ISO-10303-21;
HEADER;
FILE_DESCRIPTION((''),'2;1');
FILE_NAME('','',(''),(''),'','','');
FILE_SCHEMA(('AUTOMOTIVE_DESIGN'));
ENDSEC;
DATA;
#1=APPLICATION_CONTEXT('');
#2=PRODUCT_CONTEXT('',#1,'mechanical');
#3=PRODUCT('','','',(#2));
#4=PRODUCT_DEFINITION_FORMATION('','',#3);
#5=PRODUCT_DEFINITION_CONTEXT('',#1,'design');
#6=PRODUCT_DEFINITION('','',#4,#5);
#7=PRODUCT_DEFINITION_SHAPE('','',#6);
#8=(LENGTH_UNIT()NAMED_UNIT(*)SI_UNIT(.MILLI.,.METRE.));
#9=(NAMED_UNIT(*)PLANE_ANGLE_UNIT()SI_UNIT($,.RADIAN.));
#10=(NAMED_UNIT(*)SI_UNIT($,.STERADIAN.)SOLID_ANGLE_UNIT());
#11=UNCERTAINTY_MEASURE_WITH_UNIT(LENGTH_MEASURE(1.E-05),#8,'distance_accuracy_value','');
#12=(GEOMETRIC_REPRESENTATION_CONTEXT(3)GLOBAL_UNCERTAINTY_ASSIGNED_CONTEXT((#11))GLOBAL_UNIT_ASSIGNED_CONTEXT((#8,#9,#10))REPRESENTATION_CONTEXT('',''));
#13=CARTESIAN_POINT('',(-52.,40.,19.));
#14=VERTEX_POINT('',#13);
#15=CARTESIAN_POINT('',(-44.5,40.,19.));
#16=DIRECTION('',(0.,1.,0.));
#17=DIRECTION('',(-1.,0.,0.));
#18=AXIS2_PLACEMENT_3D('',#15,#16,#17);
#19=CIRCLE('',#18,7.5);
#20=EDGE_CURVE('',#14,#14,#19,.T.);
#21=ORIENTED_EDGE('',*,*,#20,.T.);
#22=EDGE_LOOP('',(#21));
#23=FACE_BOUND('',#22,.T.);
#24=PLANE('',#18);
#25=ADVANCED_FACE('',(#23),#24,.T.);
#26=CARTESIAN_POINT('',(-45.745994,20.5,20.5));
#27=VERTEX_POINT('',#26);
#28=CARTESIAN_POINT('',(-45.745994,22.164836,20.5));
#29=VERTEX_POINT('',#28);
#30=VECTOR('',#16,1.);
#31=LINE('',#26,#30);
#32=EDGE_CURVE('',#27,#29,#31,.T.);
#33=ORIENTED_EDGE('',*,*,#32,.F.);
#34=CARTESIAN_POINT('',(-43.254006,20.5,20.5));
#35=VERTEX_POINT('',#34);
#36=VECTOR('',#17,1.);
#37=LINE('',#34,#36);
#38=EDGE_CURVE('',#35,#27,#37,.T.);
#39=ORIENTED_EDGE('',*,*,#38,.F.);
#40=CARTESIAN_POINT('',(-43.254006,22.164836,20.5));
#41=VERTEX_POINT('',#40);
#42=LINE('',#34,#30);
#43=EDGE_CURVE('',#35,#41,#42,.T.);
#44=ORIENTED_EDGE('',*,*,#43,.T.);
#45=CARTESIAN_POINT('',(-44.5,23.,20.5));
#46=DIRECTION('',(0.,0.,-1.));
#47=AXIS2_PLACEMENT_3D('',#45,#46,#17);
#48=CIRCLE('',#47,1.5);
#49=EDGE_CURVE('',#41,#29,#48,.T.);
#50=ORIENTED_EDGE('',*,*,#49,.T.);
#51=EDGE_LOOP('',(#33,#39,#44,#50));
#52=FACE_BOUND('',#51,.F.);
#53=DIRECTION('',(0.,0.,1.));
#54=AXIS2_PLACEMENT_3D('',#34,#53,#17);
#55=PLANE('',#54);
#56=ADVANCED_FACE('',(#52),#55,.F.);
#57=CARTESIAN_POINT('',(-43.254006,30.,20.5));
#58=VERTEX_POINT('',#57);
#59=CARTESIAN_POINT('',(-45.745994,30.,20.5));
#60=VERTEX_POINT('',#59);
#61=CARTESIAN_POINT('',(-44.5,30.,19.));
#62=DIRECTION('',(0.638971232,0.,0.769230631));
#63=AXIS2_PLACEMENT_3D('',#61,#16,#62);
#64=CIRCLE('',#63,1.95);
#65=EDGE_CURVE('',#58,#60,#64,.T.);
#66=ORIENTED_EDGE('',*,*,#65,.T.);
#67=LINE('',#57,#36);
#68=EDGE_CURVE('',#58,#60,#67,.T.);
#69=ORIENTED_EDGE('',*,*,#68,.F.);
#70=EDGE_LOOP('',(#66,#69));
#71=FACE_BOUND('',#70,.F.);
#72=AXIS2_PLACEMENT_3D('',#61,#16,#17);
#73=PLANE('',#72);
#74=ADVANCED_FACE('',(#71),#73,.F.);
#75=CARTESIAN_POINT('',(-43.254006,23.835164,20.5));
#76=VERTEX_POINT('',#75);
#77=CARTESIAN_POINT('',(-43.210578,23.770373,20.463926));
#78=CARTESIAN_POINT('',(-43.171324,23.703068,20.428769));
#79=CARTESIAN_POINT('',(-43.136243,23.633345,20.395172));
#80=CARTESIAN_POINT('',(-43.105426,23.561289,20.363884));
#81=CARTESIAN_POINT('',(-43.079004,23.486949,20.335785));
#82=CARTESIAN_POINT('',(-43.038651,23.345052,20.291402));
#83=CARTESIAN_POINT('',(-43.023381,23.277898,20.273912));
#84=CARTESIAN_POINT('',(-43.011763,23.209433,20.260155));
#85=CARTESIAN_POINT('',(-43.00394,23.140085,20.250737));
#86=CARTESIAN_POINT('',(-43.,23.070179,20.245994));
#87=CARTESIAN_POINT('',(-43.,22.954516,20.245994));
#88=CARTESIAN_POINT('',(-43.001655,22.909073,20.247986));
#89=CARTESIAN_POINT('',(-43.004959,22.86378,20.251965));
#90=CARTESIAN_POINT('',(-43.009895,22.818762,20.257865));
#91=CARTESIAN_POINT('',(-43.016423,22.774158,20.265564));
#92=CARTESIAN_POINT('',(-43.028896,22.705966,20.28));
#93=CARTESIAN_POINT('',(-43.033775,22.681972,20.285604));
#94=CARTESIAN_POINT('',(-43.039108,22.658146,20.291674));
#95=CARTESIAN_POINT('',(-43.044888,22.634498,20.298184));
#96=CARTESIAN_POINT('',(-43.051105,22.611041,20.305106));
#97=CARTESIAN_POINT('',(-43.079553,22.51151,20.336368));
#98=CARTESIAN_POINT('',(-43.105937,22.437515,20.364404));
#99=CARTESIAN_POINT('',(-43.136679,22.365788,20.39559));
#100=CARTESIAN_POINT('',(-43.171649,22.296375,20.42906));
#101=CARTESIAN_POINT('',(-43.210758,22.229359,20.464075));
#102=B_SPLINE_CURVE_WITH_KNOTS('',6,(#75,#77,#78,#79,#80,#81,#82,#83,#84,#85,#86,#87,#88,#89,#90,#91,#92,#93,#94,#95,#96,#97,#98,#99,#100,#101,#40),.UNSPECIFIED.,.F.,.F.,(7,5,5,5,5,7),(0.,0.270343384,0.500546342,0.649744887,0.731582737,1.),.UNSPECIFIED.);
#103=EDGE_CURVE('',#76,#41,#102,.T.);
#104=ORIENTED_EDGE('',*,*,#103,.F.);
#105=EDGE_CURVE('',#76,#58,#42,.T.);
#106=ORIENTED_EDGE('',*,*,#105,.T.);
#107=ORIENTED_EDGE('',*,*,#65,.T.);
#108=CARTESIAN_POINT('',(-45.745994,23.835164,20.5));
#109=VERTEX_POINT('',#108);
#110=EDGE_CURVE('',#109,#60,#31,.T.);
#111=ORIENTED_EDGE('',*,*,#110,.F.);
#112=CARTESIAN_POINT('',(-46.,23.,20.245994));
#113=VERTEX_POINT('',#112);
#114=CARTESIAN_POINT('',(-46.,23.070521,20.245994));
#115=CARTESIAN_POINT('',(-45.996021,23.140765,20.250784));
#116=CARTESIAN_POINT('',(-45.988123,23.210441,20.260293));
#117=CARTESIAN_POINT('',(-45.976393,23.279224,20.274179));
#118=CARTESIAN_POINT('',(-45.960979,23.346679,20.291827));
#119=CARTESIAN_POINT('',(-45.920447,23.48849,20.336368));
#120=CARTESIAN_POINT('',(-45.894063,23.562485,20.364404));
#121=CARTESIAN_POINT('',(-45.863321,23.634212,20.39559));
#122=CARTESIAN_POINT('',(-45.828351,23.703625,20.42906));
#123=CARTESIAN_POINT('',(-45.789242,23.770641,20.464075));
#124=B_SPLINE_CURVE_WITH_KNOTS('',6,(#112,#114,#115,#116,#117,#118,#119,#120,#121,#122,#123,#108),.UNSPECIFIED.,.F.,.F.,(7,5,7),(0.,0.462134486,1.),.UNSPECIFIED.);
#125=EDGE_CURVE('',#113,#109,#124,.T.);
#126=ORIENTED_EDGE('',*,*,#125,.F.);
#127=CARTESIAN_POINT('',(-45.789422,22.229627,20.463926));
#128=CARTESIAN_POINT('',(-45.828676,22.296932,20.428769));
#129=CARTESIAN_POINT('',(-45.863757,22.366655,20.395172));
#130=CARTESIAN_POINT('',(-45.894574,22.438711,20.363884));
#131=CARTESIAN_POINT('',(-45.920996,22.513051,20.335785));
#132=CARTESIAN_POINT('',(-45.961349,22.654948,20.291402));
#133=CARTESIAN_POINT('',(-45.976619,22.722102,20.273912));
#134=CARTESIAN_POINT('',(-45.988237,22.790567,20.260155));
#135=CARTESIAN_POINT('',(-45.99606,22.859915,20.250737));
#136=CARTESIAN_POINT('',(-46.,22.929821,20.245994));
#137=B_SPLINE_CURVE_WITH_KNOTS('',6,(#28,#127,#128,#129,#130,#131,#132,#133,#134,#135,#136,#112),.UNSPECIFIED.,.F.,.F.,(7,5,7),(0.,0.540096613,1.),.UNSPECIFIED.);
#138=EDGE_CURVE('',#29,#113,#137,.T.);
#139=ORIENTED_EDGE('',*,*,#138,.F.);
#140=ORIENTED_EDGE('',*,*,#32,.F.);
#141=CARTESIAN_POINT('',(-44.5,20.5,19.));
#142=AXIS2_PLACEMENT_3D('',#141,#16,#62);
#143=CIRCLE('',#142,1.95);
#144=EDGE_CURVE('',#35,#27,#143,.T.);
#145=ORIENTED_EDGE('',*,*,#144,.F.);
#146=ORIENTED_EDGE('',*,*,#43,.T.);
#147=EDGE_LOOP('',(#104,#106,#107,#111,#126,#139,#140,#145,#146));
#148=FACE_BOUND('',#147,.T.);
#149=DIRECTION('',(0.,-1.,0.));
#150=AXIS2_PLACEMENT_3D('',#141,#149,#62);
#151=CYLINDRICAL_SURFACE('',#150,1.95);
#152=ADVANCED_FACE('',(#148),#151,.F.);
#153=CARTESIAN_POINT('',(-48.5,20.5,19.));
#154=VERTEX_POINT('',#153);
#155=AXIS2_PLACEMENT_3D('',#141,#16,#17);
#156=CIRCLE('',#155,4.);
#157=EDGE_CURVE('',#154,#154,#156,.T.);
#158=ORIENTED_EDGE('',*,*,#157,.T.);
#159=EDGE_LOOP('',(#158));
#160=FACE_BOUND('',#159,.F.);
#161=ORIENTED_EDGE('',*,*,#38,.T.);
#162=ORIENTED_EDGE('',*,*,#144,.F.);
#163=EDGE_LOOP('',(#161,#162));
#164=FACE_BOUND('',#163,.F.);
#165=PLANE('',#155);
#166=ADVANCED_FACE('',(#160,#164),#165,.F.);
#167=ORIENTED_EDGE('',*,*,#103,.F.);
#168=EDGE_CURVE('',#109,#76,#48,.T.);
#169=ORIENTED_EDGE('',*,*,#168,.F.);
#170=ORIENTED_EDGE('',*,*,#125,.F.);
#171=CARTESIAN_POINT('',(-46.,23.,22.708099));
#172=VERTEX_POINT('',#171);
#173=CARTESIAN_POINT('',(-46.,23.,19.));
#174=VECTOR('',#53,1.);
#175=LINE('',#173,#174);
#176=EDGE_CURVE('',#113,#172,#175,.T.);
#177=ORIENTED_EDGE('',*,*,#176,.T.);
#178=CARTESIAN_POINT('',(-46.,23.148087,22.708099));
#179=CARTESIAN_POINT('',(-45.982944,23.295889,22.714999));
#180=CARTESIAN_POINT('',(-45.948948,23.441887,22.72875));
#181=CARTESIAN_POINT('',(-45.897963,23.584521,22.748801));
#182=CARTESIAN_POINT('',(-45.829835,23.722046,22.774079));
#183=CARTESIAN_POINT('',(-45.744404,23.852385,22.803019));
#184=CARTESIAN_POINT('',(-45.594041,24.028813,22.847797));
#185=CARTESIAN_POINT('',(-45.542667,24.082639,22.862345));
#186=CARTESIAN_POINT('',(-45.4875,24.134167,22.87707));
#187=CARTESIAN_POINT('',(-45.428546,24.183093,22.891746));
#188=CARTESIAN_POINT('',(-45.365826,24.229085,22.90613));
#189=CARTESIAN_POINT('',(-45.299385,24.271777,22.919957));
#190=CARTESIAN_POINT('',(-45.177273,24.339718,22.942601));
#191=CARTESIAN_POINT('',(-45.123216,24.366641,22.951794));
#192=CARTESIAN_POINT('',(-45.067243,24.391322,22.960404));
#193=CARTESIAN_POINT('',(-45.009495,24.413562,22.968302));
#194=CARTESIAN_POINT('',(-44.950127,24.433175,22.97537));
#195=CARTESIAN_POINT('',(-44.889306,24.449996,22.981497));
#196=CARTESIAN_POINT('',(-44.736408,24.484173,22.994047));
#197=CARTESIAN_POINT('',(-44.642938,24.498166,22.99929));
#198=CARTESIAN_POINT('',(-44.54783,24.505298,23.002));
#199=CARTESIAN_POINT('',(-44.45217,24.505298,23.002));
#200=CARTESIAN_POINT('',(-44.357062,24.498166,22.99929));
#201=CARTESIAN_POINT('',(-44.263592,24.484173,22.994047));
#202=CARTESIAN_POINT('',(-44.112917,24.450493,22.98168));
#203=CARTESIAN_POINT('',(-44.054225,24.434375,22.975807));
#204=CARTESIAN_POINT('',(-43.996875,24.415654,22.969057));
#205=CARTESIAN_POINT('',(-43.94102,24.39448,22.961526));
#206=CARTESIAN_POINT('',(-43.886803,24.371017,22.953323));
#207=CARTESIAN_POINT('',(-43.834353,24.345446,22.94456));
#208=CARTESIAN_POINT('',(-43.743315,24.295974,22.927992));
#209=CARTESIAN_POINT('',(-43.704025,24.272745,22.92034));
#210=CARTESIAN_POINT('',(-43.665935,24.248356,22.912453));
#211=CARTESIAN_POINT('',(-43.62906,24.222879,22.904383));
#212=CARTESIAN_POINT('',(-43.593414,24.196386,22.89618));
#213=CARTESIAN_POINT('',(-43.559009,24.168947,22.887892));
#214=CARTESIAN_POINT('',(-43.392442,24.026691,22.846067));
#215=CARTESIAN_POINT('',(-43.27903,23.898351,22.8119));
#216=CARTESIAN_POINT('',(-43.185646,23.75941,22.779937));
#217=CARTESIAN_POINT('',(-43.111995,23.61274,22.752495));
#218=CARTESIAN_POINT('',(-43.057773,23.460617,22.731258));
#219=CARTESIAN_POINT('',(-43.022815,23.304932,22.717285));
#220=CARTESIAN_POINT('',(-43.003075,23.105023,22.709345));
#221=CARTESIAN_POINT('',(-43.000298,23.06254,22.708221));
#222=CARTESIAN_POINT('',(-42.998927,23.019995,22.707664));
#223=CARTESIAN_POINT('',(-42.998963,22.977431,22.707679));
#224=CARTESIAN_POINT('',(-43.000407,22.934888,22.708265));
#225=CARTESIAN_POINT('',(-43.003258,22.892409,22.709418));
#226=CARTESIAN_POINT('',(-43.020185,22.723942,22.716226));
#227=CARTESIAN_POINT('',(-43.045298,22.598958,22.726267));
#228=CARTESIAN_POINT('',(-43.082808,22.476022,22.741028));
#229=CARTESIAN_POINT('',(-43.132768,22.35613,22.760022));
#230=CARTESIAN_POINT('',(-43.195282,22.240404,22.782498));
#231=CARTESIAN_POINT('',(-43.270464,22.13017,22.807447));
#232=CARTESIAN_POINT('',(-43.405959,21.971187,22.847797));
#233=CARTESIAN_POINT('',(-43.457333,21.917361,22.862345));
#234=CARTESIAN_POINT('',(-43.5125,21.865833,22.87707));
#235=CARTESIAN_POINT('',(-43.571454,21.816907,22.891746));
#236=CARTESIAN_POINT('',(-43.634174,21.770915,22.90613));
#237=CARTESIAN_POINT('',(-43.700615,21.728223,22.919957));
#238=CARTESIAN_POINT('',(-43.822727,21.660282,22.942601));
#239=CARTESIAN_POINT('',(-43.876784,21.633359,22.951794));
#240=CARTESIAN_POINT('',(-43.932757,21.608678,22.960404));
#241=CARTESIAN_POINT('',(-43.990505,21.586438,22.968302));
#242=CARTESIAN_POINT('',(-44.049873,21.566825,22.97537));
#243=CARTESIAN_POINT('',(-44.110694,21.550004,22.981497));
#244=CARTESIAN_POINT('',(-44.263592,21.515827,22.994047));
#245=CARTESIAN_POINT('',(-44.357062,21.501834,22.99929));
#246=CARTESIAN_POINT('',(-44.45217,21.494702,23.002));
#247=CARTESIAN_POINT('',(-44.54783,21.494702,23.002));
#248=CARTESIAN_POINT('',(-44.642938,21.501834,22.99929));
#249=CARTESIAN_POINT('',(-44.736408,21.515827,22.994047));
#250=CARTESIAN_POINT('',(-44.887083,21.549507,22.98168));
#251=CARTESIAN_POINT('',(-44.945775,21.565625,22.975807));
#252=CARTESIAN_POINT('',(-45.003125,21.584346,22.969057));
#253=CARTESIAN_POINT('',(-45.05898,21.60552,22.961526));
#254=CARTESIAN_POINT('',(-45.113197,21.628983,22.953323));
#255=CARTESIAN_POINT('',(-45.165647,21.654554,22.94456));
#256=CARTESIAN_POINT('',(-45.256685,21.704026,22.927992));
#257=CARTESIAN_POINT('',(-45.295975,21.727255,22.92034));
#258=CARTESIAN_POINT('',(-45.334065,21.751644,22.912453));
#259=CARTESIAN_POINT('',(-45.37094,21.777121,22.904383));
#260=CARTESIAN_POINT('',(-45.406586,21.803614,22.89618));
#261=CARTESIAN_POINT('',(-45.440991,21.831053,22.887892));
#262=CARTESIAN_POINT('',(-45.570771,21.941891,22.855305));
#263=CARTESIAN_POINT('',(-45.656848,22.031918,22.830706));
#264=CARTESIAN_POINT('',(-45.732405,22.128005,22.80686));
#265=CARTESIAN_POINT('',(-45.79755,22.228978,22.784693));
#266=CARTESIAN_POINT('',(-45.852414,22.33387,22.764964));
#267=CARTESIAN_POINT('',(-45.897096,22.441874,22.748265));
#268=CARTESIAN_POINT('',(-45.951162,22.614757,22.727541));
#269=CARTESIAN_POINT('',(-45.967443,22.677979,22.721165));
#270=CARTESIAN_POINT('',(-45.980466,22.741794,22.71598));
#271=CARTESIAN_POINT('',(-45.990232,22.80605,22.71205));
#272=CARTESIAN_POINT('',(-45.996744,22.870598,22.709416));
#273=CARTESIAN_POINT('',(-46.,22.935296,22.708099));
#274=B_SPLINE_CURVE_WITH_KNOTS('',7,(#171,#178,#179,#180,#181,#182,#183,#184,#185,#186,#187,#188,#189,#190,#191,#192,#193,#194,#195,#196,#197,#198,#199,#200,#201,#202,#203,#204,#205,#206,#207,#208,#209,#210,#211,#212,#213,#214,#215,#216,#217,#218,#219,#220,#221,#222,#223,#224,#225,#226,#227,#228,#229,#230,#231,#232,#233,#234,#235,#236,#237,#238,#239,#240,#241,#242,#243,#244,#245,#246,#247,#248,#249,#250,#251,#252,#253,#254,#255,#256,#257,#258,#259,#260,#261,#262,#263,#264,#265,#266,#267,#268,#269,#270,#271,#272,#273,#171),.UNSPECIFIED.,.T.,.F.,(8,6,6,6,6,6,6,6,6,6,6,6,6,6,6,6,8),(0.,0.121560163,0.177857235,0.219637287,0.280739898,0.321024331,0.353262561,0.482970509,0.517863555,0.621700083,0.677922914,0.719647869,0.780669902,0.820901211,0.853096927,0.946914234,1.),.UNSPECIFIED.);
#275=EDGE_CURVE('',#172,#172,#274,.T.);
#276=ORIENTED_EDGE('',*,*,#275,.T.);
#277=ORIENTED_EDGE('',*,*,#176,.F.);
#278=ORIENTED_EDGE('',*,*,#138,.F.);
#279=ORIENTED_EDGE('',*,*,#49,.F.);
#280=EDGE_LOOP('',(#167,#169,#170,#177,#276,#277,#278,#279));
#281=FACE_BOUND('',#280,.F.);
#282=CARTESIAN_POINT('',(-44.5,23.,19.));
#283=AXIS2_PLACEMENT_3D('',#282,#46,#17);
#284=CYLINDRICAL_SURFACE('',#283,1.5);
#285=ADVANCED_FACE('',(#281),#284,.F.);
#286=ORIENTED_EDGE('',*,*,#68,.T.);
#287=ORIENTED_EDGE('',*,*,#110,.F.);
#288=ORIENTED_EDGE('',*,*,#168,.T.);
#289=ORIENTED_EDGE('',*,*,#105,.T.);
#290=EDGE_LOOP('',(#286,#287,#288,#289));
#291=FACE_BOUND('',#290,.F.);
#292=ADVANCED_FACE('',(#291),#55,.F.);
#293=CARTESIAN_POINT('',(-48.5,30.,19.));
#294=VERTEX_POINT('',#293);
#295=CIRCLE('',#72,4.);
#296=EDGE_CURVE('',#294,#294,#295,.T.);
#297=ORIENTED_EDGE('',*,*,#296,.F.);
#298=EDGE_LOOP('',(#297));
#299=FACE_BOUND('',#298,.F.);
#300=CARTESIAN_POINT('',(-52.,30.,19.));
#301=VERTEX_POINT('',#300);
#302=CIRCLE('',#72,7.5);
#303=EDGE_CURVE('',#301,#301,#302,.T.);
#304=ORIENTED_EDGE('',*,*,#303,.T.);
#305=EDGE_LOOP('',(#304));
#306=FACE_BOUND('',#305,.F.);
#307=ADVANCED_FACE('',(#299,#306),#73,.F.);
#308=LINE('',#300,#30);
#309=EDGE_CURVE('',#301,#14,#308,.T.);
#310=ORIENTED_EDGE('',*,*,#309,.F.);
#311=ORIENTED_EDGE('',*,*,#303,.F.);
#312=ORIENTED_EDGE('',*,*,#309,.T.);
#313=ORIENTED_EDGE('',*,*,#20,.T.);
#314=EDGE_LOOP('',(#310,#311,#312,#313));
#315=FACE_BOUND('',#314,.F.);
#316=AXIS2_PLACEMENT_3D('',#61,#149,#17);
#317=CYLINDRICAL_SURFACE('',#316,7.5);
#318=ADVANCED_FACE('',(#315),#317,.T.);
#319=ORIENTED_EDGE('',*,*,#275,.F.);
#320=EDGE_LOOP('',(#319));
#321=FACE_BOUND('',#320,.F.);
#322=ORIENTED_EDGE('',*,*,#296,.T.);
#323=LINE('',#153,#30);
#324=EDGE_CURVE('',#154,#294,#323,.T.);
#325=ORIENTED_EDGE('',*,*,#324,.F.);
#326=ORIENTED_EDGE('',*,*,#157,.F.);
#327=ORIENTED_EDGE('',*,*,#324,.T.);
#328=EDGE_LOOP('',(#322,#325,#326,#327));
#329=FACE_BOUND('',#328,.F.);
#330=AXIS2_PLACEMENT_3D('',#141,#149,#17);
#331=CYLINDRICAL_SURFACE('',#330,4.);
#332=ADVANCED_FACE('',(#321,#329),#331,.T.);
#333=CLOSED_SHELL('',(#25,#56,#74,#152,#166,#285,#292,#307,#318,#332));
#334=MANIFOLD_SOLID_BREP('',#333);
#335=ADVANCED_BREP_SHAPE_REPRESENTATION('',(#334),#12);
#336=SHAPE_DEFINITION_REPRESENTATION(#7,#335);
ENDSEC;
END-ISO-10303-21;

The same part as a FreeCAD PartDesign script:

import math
import FreeCAD as App
import Part
import Sketcher

V = App.Vector

doc = App.newDocument("Part")
body = doc.addObject("PartDesign::Body", "Body")

sketch1 = body.newObject("Sketcher::SketchObject", "Sketch")
sketch1.AttachmentSupport = (doc.getObject("XY_Plane"), [""])
sketch1.MapMode = "FlatFace"
sketch1.addGeometry([
    Part.Circle(V(0, 0, 0), V(0, 0, 1), 4),
    Part.ArcOfCircle(Part.Circle(V(0, 0, 0), V(0, 0, 1), 2), math.radians(130), math.radians(410)),
    Part.LineSegment(V(-1.2, 1.5, 0), V(1.2, 1.5, 0)),
], False)
sketch1.addConstraint([
    Sketcher.Constraint("Coincident", 1, 1, 2, 1),
    Sketcher.Constraint("Coincident", 2, 2, 1, 2),
    Sketcher.Constraint("Horizontal", 2),
    Sketcher.Constraint("Coincident", 0, 3, -1, 1),
    Sketcher.Constraint("Coincident", 1, 3, -1, 1),
    Sketcher.Constraint("Diameter", 0, 8.0),
    Sketcher.Constraint("Radius", 1, 1.95),
    Sketcher.Constraint("DistanceY", -1, 1, 1, 1, 1.5),
])
pad1 = body.newObject("PartDesign::Pad", "Pad")
pad1.Profile = sketch1
pad1.Length = 9.5

sketch2 = body.newObject("Sketcher::SketchObject", "Sketch001")
sketch2.AttachmentSupport = (doc.getObject("XY_Plane"), [""])
sketch2.MapMode = "FlatFace"
sketch2.AttachmentOffset = App.Placement(V(0, 0, 9.5), App.Rotation())
sketch2.addGeometry(Part.Circle(V(0, 0, 0), V(0, 0, 1), 8), False)
sketch2.addConstraint([
    Sketcher.Constraint("Coincident", 0, 3, -1, 1),
    Sketcher.Constraint("Diameter", 0, 15.0),
])
pad2 = body.newObject("PartDesign::Pad", "Pad001")
pad2.Profile = sketch2
pad2.Length = 10

sketch3 = body.newObject("Sketcher::SketchObject", "Sketch002")
sketch3.AttachmentSupport = (doc.getObject("XZ_Plane"), [""])
sketch3.MapMode = "FlatFace"
sketch3.addGeometry(Part.Circle(V(0, 2.5, 0), V(0, 0, 1), 1.5), False)
sketch3.addConstraint([
    Sketcher.Constraint("PointOnObject", 0, 3, -2),
    Sketcher.Constraint("Diameter", 0, 3.0),
    Sketcher.Constraint("DistanceY", -1, 1, 0, 3, 2.5),
])
pocket1 = body.newObject("PartDesign::Pocket", "Pocket")
pocket1.Profile = sketch3
pocket1.Type = "ThroughAll"
body2 = doc.addObject("PartDesign::Body", "Body001")
doc.recompute()

body.Placement = App.Placement(V(0, 0, 0), App.Rotation(V(1, 0, 0), 90))
boolean = body2.newObject("PartDesign::Boolean", "Boolean")
boolean.Type = "Fuse"
boolean.addObjects([body])
body3 = doc.addObject("PartDesign::Body", "Body002")
doc.recompute()

body2.Placement = App.Placement(V(-44.5, 20.5, 19), App.Rotation(V(0, 0, 1), 180))
boolean2 = body3.newObject("PartDesign::Boolean", "Boolean001")
boolean2.Type = "Fuse"
boolean2.addObjects([body2])

doc.recompute()
